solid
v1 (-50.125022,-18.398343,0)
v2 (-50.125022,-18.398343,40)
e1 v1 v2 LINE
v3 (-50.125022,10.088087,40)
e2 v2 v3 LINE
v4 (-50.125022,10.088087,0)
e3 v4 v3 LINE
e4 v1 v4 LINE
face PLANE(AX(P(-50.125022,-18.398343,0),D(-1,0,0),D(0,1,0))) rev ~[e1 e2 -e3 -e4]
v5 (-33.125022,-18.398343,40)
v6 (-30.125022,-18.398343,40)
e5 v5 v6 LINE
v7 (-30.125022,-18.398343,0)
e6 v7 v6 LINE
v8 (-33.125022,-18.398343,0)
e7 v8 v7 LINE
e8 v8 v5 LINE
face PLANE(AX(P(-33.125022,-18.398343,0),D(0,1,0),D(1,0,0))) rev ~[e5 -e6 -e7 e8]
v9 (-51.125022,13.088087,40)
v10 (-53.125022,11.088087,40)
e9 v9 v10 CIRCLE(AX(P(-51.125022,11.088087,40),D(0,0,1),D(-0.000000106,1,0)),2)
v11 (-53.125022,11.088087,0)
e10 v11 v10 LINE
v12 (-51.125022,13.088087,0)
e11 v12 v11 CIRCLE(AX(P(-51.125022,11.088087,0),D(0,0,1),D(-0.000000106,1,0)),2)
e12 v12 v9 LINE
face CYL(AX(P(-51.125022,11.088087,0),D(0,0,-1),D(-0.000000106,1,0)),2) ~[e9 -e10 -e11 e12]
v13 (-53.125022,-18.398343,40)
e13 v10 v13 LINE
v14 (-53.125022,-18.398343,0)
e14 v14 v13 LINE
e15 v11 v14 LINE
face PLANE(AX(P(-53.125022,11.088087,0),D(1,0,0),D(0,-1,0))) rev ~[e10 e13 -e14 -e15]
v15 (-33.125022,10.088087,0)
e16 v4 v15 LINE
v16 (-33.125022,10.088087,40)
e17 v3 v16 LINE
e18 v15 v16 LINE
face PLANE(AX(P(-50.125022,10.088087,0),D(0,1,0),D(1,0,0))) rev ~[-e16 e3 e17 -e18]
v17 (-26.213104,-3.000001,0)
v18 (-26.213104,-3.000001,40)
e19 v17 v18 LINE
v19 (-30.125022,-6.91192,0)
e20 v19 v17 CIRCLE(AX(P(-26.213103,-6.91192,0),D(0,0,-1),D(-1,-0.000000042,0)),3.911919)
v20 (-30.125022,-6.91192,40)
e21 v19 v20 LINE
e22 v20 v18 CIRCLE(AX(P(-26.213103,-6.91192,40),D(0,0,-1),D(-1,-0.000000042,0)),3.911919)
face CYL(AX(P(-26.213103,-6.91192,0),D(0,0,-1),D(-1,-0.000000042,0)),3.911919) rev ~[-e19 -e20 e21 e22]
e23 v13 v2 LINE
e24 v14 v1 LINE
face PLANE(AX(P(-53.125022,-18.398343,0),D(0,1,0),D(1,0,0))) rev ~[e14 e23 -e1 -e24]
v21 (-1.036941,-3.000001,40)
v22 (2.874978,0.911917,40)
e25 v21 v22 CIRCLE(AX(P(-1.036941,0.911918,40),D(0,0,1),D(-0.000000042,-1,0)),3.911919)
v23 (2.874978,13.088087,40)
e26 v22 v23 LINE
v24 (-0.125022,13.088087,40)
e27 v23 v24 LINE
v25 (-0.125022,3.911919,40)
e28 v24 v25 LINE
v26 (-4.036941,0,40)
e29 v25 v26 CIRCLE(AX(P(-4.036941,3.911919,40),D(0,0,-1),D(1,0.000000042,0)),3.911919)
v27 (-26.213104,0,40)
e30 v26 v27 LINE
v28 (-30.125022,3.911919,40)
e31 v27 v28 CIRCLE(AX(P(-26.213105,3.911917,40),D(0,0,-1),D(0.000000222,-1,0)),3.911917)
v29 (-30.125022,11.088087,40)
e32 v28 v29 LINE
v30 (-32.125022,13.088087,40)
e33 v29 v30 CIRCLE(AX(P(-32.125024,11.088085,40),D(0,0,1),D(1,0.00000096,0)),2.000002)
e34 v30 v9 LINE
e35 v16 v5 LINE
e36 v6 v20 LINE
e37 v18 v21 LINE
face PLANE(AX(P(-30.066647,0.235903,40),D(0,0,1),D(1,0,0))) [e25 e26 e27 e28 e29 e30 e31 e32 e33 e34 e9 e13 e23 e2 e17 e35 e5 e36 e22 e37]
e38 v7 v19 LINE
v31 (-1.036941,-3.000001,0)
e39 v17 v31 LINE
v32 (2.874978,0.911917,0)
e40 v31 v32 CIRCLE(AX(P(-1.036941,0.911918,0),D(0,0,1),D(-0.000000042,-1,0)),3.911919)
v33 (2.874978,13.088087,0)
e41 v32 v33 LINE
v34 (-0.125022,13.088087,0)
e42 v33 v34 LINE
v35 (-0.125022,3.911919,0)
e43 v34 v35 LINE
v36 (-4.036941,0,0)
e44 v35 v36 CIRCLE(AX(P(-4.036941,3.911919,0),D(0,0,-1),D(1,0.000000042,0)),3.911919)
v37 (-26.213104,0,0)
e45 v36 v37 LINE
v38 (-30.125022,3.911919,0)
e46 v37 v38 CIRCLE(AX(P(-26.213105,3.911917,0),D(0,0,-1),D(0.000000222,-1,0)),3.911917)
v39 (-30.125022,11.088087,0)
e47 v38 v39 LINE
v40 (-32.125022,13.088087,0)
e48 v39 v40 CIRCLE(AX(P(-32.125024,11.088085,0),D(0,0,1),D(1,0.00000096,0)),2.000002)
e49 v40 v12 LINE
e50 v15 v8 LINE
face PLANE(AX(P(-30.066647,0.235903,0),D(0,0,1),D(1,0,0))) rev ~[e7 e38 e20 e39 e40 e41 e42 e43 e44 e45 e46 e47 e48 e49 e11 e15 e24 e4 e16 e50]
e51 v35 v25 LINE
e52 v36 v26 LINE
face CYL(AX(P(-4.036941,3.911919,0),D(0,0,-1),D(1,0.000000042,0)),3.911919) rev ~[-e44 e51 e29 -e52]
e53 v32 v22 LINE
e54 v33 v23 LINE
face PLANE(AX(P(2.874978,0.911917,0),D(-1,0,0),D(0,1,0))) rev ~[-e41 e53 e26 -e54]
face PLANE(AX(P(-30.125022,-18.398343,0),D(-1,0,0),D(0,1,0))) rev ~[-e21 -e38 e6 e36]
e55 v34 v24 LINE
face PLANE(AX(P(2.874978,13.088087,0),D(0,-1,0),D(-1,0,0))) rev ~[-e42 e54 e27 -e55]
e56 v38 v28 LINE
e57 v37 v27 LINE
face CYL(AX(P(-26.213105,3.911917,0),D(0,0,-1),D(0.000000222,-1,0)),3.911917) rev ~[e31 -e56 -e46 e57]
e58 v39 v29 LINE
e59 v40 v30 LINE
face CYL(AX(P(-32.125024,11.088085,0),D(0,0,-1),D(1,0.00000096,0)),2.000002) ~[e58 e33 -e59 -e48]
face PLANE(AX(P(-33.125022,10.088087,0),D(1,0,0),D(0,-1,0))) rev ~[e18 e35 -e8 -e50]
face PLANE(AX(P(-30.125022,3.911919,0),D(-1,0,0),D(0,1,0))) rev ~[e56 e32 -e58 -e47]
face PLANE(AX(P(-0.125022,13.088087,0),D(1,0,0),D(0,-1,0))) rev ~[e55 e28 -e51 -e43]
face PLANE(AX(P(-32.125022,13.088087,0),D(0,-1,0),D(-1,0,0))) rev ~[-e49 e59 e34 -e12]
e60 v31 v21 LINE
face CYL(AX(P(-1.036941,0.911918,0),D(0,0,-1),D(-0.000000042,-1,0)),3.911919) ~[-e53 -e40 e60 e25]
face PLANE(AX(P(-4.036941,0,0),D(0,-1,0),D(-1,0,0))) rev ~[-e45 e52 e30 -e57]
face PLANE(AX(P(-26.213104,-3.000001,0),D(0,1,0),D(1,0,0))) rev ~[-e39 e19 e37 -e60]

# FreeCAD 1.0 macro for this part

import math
import FreeCAD as App
import Part
import Sketcher
Q = App.Units.Quantity

doc = App.newDocument("Part")
params = doc.addObject("Spreadsheet::Sheet", "Params")
for row, (alias, value) in enumerate([
    ("sketch1_radius", "2.000002 mm"),
    ("sketch1_width", "3 mm"),
    ("sketch1_width2", "17 mm"),
    ("pad1_length", "40 mm"),
], start=1):
    params.set(f"A{row}", alias)
    params.set(f"B{row}", "=" + value)
    params.setAlias(f"B{row}", alias)

body = doc.addObject("PartDesign::Body", "Body")

sketch1 = body.newObject("Sketcher::SketchObject", "Sketch")
sketch1.AttachmentSupport = (doc.getObject("XY_Plane"), [""])
sketch1.MapMode = "FlatFace"
sketch1.addGeometry([
    Part.LineSegment(App.Vector(-53.1, 11.1, 0), App.Vector(-53.1, -18.4, 0)),
    Part.LineSegment(App.Vector(-53.1, -18.4, 0), App.Vector(-50.1, -18.4, 0)),
    Part.LineSegment(App.Vector(-50.1, -18.4, 0), App.Vector(-50.1, 10.1, 0)),
    Part.LineSegment(App.Vector(-50.1, 10.1, 0), App.Vector(-33.1, 10.1, 0)),
    Part.LineSegment(App.Vector(-33.1, 10.1, 0), App.Vector(-33.1, -18.4, 0)),
    Part.LineSegment(App.Vector(-33.1, -18.4, 0), App.Vector(-30.1, -18.4, 0)),
    Part.LineSegment(App.Vector(-30.1, -18.4, 0), App.Vector(-30.1, -6.9, 0)),
    Part.ArcOfCircle(Part.Circle(App.Vector(-26.2, -6.9, 0), App.Vector(0, 0, 1), 3.9), math.radians(90), math.radians(180)),
    Part.LineSegment(App.Vector(-26.2, -3, 0), App.Vector(-1, -3, 0)),
    Part.ArcOfCircle(Part.Circle(App.Vector(-1, 0.9, 0), App.Vector(0, 0, 1), 3.9), math.radians(-90), math.radians(0)),
    Part.LineSegment(App.Vector(2.9, 0.9, 0), App.Vector(2.9, 13.1, 0)),
    Part.LineSegment(App.Vector(2.9, 13.1, 0), App.Vector(-0.1, 13.1, 0)),
    Part.LineSegment(App.Vector(-0.1, 13.1, 0), App.Vector(-0.1, 3.9, 0)),
    Part.ArcOfCircle(Part.Circle(App.Vector(-4, 3.9, 0), App.Vector(0, 0, 1), 3.9), math.radians(-90), math.radians(0)),
    Part.LineSegment(App.Vector(-4, 0, 0), App.Vector(-26.2, 0, 0)),
    Part.ArcOfCircle(Part.Circle(App.Vector(-26.2, 3.9, 0), App.Vector(0, 0, 1), 3.9), math.radians(180), math.radians(270)),
    Part.LineSegment(App.Vector(-30.1, 3.9, 0), App.Vector(-30.1, 11.1, 0)),
    Part.ArcOfCircle(Part.Circle(App.Vector(-32.1, 11.1, 0), App.Vector(0, 0, 1), 2), math.radians(0), math.radians(90)),
    Part.LineSegment(App.Vector(-32.1, 13.1, 0), App.Vector(-51.1, 13.1, 0)),
    Part.ArcOfCircle(Part.Circle(App.Vector(-51.1, 11.1, 0), App.Vector(0, 0, 1), 2), math.radians(90), math.radians(180)),
], False)
sketch1.addConstraint([
    Sketcher.Constraint("Coincident", 0, 2, 1, 1),
    Sketcher.Constraint("Coincident", 1, 2, 2, 1),
    Sketcher.Constraint("Coincident", 2, 2, 3, 1),
    Sketcher.Constraint("Coincident", 3, 2, 4, 1),
    Sketcher.Constraint("Coincident", 4, 2, 5, 1),
    Sketcher.Constraint("Coincident", 5, 2, 6, 1),
    Sketcher.Constraint("Tangent", 6, 2, 7, 2),
    Sketcher.Constraint("Tangent", 7, 1, 8, 1),
    Sketcher.Constraint("Tangent", 8, 2, 9, 1),
    Sketcher.Constraint("Tangent", 9, 2, 10, 1),
    Sketcher.Constraint("Coincident", 10, 2, 11, 1),
    Sketcher.Constraint("Coincident", 11, 2, 12, 1),
    Sketcher.Constraint("Tangent", 12, 2, 13, 2),
    Sketcher.Constraint("Tangent", 13, 1, 14, 1),
    Sketcher.Constraint("Tangent", 14, 2, 15, 2),
    Sketcher.Constraint("Tangent", 15, 1, 16, 1),
    Sketcher.Constraint("Tangent", 16, 2, 17, 1),
    Sketcher.Constraint("Tangent", 17, 2, 18, 1),
    Sketcher.Constraint("Tangent", 18, 2, 19, 1),
    Sketcher.Constraint("Tangent", 19, 2, 0, 1),
    Sketcher.Constraint("Vertical", 0),
    Sketcher.Constraint("Horizontal", 1),
    Sketcher.Constraint("Vertical", 2),
    Sketcher.Constraint("Horizontal", 3),
    Sketcher.Constraint("Vertical", 4),
    Sketcher.Constraint("Horizontal", 5),
    Sketcher.Constraint("Vertical", 6),
    Sketcher.Constraint("Horizontal", 8),
    Sketcher.Constraint("Vertical", 10),
    Sketcher.Constraint("Horizontal", 11),
    Sketcher.Constraint("Vertical", 12),
    Sketcher.Constraint("Horizontal", 14),
    Sketcher.Constraint("Vertical", 16),
    Sketcher.Constraint("Horizontal", 18),
    Sketcher.Constraint("Equal", 7, 9),
    Sketcher.Constraint("Equal", 9, 13),
    Sketcher.Constraint("Equal", 13, 15),
    Sketcher.Constraint("Equal", 17, 19),
    Sketcher.Constraint("PointOnObject", 13, 1, -1),
    Sketcher.Constraint("Horizontal", 1, 2, 4, 2),
    Sketcher.Constraint("Horizontal", 11, 2, 17, 2),
    Sketcher.Constraint("Vertical", 7, 3, 15, 3),
    Sketcher.Constraint("Equal", 1, 5),
    Sketcher.Constraint("Equal", 5, 11),
    Sketcher.Constraint("Radius", 17, Q("2.000002 mm")),
    Sketcher.Constraint("DistanceX", 1, 1, 1, 2, Q("3 mm")),
    Sketcher.Constraint("DistanceX", 3, 1, 3, 2, Q("17 mm")),
    Sketcher.Constraint("DistanceY", 7, 1, -1, 1, Q("3.000001 mm")),
    Sketcher.Constraint("DistanceY", 2, 2, 19, 3, Q("1 mm")),
    Sketcher.Constraint("Radius", 7, Q("3.911919 mm")),
    Sketcher.Constraint("DistanceY", 0, 2, 0, 1, Q("29.48643 mm")),
    Sketcher.Constraint("DistanceY", 10, 1, 10, 2, Q("12.17617 mm")),
    Sketcher.Constraint("DistanceX", 8, 1, 8, 2, Q("25.176163 mm")),
    Sketcher.Constraint("DistanceX", 9, 3, -1, 1, Q("1.036941 mm")),
])
sketch1.setExpression("Constraints[44]", "Params.sketch1_radius")
sketch1.setExpression("Constraints[45]", "Params.sketch1_width")
sketch1.setExpression("Constraints[46]", "Params.sketch1_width2")
pad1 = body.newObject("PartDesign::Pad", "Pad")
pad1.Profile = sketch1
pad1.setExpression("Length", "Params.pad1_length")

doc.recompute()
